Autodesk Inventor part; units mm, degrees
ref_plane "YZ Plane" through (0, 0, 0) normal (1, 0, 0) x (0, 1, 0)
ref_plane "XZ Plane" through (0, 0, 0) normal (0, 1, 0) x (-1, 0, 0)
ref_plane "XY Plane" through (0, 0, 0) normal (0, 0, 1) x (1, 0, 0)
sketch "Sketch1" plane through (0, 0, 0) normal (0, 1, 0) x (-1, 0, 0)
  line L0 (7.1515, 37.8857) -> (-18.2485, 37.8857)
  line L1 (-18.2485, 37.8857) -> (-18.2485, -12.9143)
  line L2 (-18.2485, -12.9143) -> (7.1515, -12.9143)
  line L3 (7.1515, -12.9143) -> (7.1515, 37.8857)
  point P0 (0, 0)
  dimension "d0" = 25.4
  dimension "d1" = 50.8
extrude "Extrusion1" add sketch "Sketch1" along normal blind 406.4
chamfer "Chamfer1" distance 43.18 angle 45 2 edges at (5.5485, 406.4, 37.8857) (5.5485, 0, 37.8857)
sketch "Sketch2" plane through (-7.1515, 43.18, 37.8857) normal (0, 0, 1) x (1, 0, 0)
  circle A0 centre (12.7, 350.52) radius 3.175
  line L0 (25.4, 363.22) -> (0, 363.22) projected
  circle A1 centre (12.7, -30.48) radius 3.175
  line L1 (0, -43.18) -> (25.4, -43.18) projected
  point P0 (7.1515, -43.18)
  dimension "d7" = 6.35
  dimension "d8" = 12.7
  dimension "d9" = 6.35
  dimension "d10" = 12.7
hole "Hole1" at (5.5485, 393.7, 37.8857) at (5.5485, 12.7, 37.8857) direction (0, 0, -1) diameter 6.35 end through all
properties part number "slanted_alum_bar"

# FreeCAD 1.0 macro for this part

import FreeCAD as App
import Part
import Sketcher
Q = App.Units.Quantity


def edges_at(feature, points):
    """Names of the edges that pass closest to the given points."""
    edges = feature.Shape.Edges
    near = lambda p: min(range(len(edges)), key=lambda i: edges[i].distToShape(Part.Vertex(*p))[0])
    return sorted({f"Edge{near(p) + 1}" for p in points})


def add_polygon(sketch, points):
    """Adds a closed chain of lines whose ends are joined by coincident constraints."""
    first, n = sketch.GeometryCount, len(points)
    for a, b in zip(points, points[1:] + points[:1]):
        sketch.addGeometry(Part.LineSegment(App.Vector(*a, 0), App.Vector(*b, 0)), False)
    for i in range(n):
        sketch.addConstraint(Sketcher.Constraint("Coincident", first + i, 2, first + (i + 1) % n, 1))

doc = App.newDocument("Part")
body = doc.addObject("PartDesign::Body", "Body")

# Sketch on XZ plane
sketch1 = doc.addObject("Sketcher::SketchObject", "Sketch")
body.addObject(sketch1)
sketch1.AttachmentSupport = (doc.XZ_Plane, [""])
sketch1.MapMode = "FlatFace"
add_polygon(sketch1, [(-7.1515, -12.9143), (-7.1515, 37.8857), (18.2485, 37.8857), (18.2485, -12.9143)])  # lines 0-3
sketch1.addConstraint([
    Sketcher.Constraint("Vertical", 0),
    Sketcher.Constraint("Horizontal", 1),
    Sketcher.Constraint("Vertical", 2),
    Sketcher.Constraint("Horizontal", 3),
    Sketcher.Constraint("DistanceX", 1, 1, 1, 2, Q("1 in")),
    Sketcher.Constraint("DistanceY", 0, 1, 0, 2, Q("2 in")),
    Sketcher.Constraint("DistanceX", 0, 2, -1, 1, 7.1515),
    Sketcher.Constraint("DistanceY", -1, 1, 0, 2, 37.8857),
])
pad1 = doc.addObject("PartDesign::Pad", "Pad")
body.addObject(pad1)
pad1.Profile = sketch1
pad1.Length = Q("16 in")
pad1.Reversed = True
doc.recompute()

chamfer = doc.addObject("PartDesign::Chamfer", "Chamfer")
body.addObject(chamfer)
chamfer.Base = (pad1, edges_at(pad1, [(5.548, 406.4, 37.886), (5.548, 0, 37.886)]))
chamfer.Size = Q("1.7 in")

# Sketch on XY plane
sketch2 = doc.addObject("Sketcher::SketchObject", "Sketch001")
body.addObject(sketch2)
sketch2.AttachmentSupport = (doc.XY_Plane, [""])
sketch2.MapMode = "FlatFace"
sketch2.AttachmentOffset = App.Placement(App.Vector(0, 0, 37.8857), App.Rotation())
sketch2.addGeometry([
    Part.Circle(App.Vector(5.5485, 393.7, 0), App.Vector(0, 0, 1), 3.175),
    Part.Circle(App.Vector(5.5485, 12.7, 0), App.Vector(0, 0, 1), 3.175),
], False)
sketch2.addConstraint([
    Sketcher.Constraint("Equal", 0, 1),
    Sketcher.Constraint("Vertical", 0, 3, 1, 3),
    Sketcher.Constraint("Diameter", 0, Q("0.25 in")),
    Sketcher.Constraint("DistanceY", 1, 3, 0, 3, Q("15 in")),
    Sketcher.Constraint("DistanceY", -1, 1, 0, 3, Q("15.5 in")),
    Sketcher.Constraint("DistanceX", -1, 1, 0, 3, 5.5485),
])
doc.recompute()
hole = doc.addObject("PartDesign::Hole", "Hole")
body.addObject(hole)
hole.Profile = sketch2
hole.ThreadType = "None"
hole.Diameter = Q("0.25 in")
hole.DepthType = "ThroughAll"

doc.recompute()
